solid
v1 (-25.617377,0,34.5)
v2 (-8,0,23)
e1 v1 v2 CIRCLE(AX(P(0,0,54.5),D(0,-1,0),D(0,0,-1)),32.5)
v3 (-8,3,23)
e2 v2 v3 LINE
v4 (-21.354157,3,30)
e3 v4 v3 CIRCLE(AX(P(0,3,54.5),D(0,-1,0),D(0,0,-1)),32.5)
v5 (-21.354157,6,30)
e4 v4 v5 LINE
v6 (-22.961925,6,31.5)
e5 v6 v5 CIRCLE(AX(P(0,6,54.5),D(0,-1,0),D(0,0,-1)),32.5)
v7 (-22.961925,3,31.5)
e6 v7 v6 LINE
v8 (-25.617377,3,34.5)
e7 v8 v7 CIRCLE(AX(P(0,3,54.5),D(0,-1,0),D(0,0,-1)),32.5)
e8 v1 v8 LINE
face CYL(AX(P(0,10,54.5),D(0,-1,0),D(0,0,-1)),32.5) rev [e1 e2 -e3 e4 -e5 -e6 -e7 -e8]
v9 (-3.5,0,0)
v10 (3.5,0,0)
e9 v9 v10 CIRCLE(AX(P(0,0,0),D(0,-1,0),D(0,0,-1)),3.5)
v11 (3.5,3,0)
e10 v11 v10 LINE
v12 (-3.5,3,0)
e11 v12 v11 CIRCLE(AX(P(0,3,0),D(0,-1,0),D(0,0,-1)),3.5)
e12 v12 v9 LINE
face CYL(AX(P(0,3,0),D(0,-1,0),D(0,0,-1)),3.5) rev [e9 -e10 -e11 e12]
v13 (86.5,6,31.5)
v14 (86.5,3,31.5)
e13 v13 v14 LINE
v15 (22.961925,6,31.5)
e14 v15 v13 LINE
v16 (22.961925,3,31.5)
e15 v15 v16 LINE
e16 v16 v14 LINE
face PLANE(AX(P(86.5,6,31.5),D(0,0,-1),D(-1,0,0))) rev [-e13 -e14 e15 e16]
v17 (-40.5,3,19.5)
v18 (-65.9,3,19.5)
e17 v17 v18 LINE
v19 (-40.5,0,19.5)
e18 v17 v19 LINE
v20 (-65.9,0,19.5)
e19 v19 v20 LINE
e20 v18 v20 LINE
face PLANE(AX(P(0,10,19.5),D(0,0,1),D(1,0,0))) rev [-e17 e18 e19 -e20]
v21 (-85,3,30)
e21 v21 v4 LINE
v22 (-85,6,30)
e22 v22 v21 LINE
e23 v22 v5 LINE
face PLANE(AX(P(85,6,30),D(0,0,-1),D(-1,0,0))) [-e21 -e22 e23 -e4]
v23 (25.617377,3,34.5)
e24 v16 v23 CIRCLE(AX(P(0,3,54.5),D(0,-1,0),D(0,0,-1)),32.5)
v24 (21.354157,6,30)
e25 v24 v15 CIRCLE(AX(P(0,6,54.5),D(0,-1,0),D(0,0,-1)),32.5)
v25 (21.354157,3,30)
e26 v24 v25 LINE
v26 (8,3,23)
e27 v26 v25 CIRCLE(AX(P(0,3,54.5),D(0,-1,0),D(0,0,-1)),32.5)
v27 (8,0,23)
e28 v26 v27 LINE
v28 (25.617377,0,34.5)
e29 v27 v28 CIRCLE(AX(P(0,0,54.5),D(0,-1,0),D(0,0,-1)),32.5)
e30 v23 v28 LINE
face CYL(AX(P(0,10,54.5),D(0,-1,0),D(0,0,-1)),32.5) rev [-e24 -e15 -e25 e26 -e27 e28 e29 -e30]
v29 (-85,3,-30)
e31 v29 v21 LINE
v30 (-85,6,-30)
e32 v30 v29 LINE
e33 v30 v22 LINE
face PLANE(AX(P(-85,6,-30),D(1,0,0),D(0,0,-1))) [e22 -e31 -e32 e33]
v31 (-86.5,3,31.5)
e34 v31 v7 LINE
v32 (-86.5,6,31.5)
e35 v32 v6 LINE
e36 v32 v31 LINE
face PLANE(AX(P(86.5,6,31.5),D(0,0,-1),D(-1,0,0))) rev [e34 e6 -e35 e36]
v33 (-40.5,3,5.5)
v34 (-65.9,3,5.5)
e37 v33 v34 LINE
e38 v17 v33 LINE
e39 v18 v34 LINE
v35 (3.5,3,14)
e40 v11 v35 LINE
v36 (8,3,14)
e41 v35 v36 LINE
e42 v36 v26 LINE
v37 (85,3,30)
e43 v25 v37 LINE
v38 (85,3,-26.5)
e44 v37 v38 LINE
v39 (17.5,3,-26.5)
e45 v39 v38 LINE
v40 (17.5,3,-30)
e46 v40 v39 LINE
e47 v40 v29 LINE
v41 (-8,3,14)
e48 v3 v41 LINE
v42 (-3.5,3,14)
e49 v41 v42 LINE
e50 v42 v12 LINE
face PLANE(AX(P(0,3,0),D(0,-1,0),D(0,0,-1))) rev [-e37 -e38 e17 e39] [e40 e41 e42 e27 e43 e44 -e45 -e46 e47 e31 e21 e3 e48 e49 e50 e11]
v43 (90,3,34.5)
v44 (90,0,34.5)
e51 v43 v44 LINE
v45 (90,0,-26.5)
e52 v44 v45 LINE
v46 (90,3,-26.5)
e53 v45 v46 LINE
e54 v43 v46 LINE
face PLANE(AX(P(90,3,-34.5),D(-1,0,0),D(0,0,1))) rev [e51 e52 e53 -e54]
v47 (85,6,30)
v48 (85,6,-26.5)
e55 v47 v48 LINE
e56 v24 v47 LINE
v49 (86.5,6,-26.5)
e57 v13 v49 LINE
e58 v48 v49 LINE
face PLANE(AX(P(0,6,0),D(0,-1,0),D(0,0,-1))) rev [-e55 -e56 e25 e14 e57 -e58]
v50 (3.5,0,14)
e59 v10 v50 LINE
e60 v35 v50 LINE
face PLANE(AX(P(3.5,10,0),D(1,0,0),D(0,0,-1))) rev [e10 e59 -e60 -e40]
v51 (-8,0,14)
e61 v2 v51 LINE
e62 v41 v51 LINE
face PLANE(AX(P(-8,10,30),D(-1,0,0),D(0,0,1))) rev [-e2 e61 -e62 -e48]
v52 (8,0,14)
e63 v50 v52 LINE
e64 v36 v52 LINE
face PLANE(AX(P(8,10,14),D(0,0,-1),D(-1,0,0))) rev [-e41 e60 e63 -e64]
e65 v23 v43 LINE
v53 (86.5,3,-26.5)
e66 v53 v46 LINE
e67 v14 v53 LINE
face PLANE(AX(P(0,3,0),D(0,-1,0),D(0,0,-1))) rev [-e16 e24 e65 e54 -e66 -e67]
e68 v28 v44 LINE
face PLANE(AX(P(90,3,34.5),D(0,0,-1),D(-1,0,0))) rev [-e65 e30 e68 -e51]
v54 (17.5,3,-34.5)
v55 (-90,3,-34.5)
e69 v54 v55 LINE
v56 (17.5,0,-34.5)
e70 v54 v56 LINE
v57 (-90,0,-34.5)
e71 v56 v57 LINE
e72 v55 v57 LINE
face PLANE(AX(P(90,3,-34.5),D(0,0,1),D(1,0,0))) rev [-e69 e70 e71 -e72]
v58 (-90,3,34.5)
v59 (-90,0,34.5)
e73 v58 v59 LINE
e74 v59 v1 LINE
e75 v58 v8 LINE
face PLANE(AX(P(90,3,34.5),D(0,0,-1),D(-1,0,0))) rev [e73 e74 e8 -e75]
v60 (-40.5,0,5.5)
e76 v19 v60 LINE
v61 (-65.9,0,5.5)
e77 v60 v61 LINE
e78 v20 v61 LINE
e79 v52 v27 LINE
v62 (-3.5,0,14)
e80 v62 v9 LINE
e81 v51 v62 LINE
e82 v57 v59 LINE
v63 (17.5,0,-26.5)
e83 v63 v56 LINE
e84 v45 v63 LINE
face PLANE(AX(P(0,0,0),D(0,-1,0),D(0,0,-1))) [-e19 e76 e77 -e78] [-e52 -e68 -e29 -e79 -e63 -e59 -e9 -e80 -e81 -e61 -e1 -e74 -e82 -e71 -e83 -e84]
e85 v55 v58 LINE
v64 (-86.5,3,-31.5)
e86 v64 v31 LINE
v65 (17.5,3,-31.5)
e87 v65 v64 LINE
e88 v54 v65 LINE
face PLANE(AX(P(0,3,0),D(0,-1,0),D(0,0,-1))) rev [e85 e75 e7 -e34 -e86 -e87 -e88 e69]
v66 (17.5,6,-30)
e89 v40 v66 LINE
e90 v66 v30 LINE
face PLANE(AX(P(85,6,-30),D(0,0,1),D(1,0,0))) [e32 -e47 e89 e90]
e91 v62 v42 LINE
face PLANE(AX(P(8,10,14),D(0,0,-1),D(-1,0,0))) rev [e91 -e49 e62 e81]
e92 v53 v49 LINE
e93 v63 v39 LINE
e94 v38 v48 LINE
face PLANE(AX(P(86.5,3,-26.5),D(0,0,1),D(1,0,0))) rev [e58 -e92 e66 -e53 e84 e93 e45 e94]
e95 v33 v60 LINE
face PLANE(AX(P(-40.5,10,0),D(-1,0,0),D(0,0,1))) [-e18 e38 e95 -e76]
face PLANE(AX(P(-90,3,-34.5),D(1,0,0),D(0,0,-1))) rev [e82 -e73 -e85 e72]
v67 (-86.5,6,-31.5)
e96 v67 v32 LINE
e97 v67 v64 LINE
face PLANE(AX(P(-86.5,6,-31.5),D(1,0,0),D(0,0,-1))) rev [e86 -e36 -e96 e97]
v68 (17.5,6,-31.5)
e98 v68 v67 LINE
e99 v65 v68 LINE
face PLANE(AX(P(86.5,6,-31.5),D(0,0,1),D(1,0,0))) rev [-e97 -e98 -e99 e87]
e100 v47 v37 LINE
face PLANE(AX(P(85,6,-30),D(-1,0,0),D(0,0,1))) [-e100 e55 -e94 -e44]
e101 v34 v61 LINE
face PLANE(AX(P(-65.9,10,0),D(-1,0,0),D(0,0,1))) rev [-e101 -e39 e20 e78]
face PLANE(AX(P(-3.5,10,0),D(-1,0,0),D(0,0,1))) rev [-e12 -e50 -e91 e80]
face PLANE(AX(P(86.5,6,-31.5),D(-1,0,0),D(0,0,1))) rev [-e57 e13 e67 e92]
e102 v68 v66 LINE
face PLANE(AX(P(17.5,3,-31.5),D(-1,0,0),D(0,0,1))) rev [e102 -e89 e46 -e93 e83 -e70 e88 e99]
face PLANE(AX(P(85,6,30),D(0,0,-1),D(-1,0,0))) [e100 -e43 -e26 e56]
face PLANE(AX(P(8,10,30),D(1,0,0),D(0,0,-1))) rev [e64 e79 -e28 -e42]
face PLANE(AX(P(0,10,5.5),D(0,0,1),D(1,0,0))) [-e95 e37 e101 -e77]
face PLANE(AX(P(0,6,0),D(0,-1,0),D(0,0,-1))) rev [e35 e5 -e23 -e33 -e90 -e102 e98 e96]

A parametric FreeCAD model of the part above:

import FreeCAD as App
import Part
import Sketcher
from FreeCAD import Vector

doc = App.newDocument("Part")
body = doc.addObject("PartDesign::Body", "Body")

# Sketch on XZ plane
sketch1 = body.newObject("Sketcher::SketchObject", "Sketch")
sketch1.AttachmentSupport = (doc.getObject("XZ_Plane"), [""])
sketch1.MapMode = "FlatFace"
sketch1.addGeometry([
    Part.LineSegment(Vector(-90, -34.5, 0), Vector(-90, 34.5, 0)),
    Part.LineSegment(Vector(-90, 34.5, 0), Vector(90, 34.5, 0)),
    Part.LineSegment(Vector(90, 34.5, 0), Vector(90, -34.5, 0)),
    Part.LineSegment(Vector(90, -34.5, 0), Vector(-90, -34.5, 0)),
], False)
sketch1.addConstraint([
    Sketcher.Constraint("Coincident", 0, 2, 1, 1),
    Sketcher.Constraint("Coincident", 1, 2, 2, 1),
    Sketcher.Constraint("Coincident", 2, 2, 3, 1),
    Sketcher.Constraint("Coincident", 3, 2, 0, 1),
    Sketcher.Constraint("Vertical", 0),
    Sketcher.Constraint("Horizontal", 1),
    Sketcher.Constraint("Vertical", 2),
    Sketcher.Constraint("Horizontal", 3),
    Sketcher.Constraint("Symmetric", 0, 2, 2, 2, -1, 1),
    Sketcher.Constraint("DistanceX", 1, 1, 1, 2, 180.0),
    Sketcher.Constraint("DistanceY", 0, 1, 0, 2, 69.0),
])
pad1 = body.newObject("PartDesign::Pad", "Pad")
pad1.Profile = sketch1
pad1.Length = 3
pad1.Reversed = True

# Sketch on XZ plane
sketch2 = body.newObject("Sketcher::SketchObject", "Sketch001")
sketch2.AttachmentSupport = (doc.getObject("XZ_Plane"), [""])
sketch2.MapMode = "FlatFace"
sketch2.AttachmentOffset = App.Placement(Vector(0, 0, -3), App.Rotation())
sketch2.addGeometry([
    Part.LineSegment(Vector(-86.5, -31.5, 0), Vector(-86.5, 31.5, 0)),  # 0
    Part.LineSegment(Vector(-86.5, 31.5, 0), Vector(86.5, 31.5, 0)),  # 1
    Part.LineSegment(Vector(86.5, 31.5, 0), Vector(86.5, -31.5, 0)),  # 2
    Part.LineSegment(Vector(86.5, -31.5, 0), Vector(-86.5, -31.5, 0)),  # 3
    Part.LineSegment(Vector(85, 30, 0), Vector(-85, 30, 0)),  # 4
    Part.LineSegment(Vector(-85, 30, 0), Vector(-85, -30, 0)),  # 5
    Part.LineSegment(Vector(-85, -30, 0), Vector(85, -30, 0)),  # 6
    Part.LineSegment(Vector(85, -30, 0), Vector(85, 30, 0)),  # 7
], False)
sketch2.addConstraint([
    Sketcher.Constraint("Coincident", 0, 2, 1, 1),
    Sketcher.Constraint("Coincident", 1, 2, 2, 1),
    Sketcher.Constraint("Coincident", 2, 2, 3, 1),
    Sketcher.Constraint("Coincident", 3, 2, 0, 1),
    Sketcher.Constraint("Coincident", 4, 2, 5, 1),
    Sketcher.Constraint("Coincident", 5, 2, 6, 1),
    Sketcher.Constraint("Coincident", 6, 2, 7, 1),
    Sketcher.Constraint("Coincident", 7, 2, 4, 1),
    Sketcher.Constraint("Vertical", 0),
    Sketcher.Constraint("Horizontal", 1),
    Sketcher.Constraint("Vertical", 2),
    Sketcher.Constraint("Horizontal", 3),
    Sketcher.Constraint("Horizontal", 4),
    Sketcher.Constraint("Vertical", 5),
    Sketcher.Constraint("Horizontal", 6),
    Sketcher.Constraint("Vertical", 7),
    Sketcher.Constraint("Symmetric", 0, 2, 2, 2, -1, 1),
    Sketcher.Constraint("Symmetric", 4, 2, 6, 2, -1, 1),
    Sketcher.Constraint("DistanceX", 1, 1, 1, 2, 173.0),
    Sketcher.Constraint("DistanceX", 4, 2, 4, 1, 170.0),
    Sketcher.Constraint("DistanceY", 0, 1, 0, 2, 63.0),
    Sketcher.Constraint("DistanceY", 5, 2, 5, 1, 60.0),
])
pad2 = body.newObject("PartDesign::Pad", "Pad001")
pad2.Profile = sketch2
pad2.Length = 3
pad2.Reversed = True

# Sketch on XZ plane
sketch3 = body.newObject("Sketcher::SketchObject", "Sketch002")
sketch3.AttachmentSupport = (doc.getObject("XZ_Plane"), [""])
sketch3.MapMode = "FlatFace"
sketch3.addGeometry([
    Part.LineSegment(Vector(-65.9, 19.5, 0), Vector(-65.9, 5.5, 0)),
    Part.LineSegment(Vector(-65.9, 5.5, 0), Vector(-40.5, 5.5, 0)),
    Part.LineSegment(Vector(-40.5, 5.5, 0), Vector(-40.5, 19.5, 0)),
    Part.LineSegment(Vector(-40.5, 19.5, 0), Vector(-65.9, 19.5, 0)),
], False)
sketch3.addConstraint([
    Sketcher.Constraint("Coincident", 0, 2, 1, 1),
    Sketcher.Constraint("Coincident", 1, 2, 2, 1),
    Sketcher.Constraint("Coincident", 2, 2, 3, 1),
    Sketcher.Constraint("Coincident", 3, 2, 0, 1),
    Sketcher.Constraint("Vertical", 0),
    Sketcher.Constraint("Horizontal", 1),
    Sketcher.Constraint("Vertical", 2),
    Sketcher.Constraint("Horizontal", 3),
    Sketcher.Constraint("DistanceY", 0, 2, 0, 1, 14.0),
    Sketcher.Constraint("DistanceX", 1, 1, 1, 2, 25.4),
    Sketcher.Constraint("DistanceX", 0, 2, -1, 1, 65.9),
    Sketcher.Constraint("DistanceY", -1, 1, 0, 2, 5.5),
])
pocket1 = body.newObject("PartDesign::Pocket", "Pocket")
pocket1.Profile = sketch3
pocket1.Length = 10

# Sketch on XZ plane
sketch4 = body.newObject("Sketcher::SketchObject", "Sketch003")
sketch4.AttachmentSupport = (doc.getObject("XZ_Plane"), [""])
sketch4.MapMode = "FlatFace"
sketch4.AttachmentOffset = App.Placement(Vector(0, 0, -6), App.Rotation())
sketch4.addGeometry([
    Part.LineSegment(Vector(17.5, -31.5, 0), Vector(17.5, -30, 0)),
    Part.LineSegment(Vector(17.5, -30, 0), Vector(86.5, -30, 0)),
    Part.LineSegment(Vector(86.5, -30, 0), Vector(86.5, -31.5, 0)),
    Part.LineSegment(Vector(86.5, -31.5, 0), Vector(17.5, -31.5, 0)),
], False)
sketch4.addConstraint([
    Sketcher.Constraint("Coincident", 0, 2, 1, 1),
    Sketcher.Constraint("Coincident", 1, 2, 2, 1),
    Sketcher.Constraint("Coincident", 2, 2, 3, 1),
    Sketcher.Constraint("Coincident", 3, 2, 0, 1),
    Sketcher.Constraint("Vertical", 0),
    Sketcher.Constraint("Horizontal", 1),
    Sketcher.Constraint("Vertical", 2),
    Sketcher.Constraint("Horizontal", 3),
    Sketcher.Constraint("DistanceX", 1, 1, 1, 2, 69.0),
    Sketcher.Constraint("DistanceY", 0, 1, 0, 2, 1.5),
    Sketcher.Constraint("DistanceY", 0, 2, -1, 1, 30.0),
    Sketcher.Constraint("DistanceX", -1, 1, 0, 2, 17.5),
])
pocket2 = body.newObject("PartDesign::Pocket", "Pocket001")
pocket2.Profile = sketch4
pocket2.Length = 3
pocket2.Reversed = True

# Sketch on XZ plane
sketch5 = body.newObject("Sketcher::SketchObject", "Sketch004")
sketch5.AttachmentSupport = (doc.getObject("XZ_Plane"), [""])
sketch5.MapMode = "FlatFace"
sketch5.AttachmentOffset = App.Placement(Vector(0, 0, -6), App.Rotation())
sketch5.addGeometry([
    Part.LineSegment(Vector(85, -30, 0), Vector(85, -26.5, 0)),
    Part.LineSegment(Vector(85, -26.5, 0), Vector(86.5, -26.5, 0)),
    Part.LineSegment(Vector(86.5, -26.5, 0), Vector(86.5, -30, 0)),
    Part.LineSegment(Vector(86.5, -30, 0), Vector(85, -30, 0)),
], False)
sketch5.addConstraint([
    Sketcher.Constraint("Coincident", 0, 2, 1, 1),
    Sketcher.Constraint("Coincident", 1, 2, 2, 1),
    Sketcher.Constraint("Coincident", 2, 2, 3, 1),
    Sketcher.Constraint("Coincident", 3, 2, 0, 1),
    Sketcher.Constraint("Vertical", 0),
    Sketcher.Constraint("Horizontal", 1),
    Sketcher.Constraint("Vertical", 2),
    Sketcher.Constraint("Horizontal", 3),
    Sketcher.Constraint("DistanceX", 1, 1, 1, 2, 1.5),
    Sketcher.Constraint("DistanceY", 0, 1, 0, 2, 3.5),
    Sketcher.Constraint("DistanceX", -1, 1, 0, 2, 85.0),
    Sketcher.Constraint("DistanceY", 2, 2, -1, 1, 30.0),
])
pocket3 = body.newObject("PartDesign::Pocket", "Pocket002")
pocket3.Profile = sketch5
pocket3.Length = 3
pocket3.Reversed = True

# Sketch on XZ plane
sketch6 = body.newObject("Sketcher::SketchObject", "Sketch005")
sketch6.AttachmentSupport = (doc.getObject("XZ_Plane"), [""])
sketch6.MapMode = "FlatFace"
sketch6.addGeometry(Part.Circle(Vector(0, 0, 0), Vector(0, 0, 1), 3.5), False)
sketch6.addConstraint([
    Sketcher.Constraint("Coincident", 0, 3, -1, 1),
    Sketcher.Constraint("Diameter", 0, 7.0),
])
pocket4 = body.newObject("PartDesign::Pocket", "Pocket003")
pocket4.Profile = sketch6
pocket4.Length = 3

# Sketch on XZ plane
sketch7 = body.newObject("Sketcher::SketchObject", "Sketch006")
sketch7.AttachmentSupport = (doc.getObject("XZ_Plane"), [""])
sketch7.MapMode = "FlatFace"
sketch7.addGeometry(Part.Circle(Vector(0, 54.5, 0), Vector(0, 0, 1), 32.5), False)
sketch7.addConstraint([
    Sketcher.Constraint("PointOnObject", 0, 3, -2),
    Sketcher.Constraint("Diameter", 0, 65.0),
    Sketcher.Constraint("DistanceY", -1, 1, 0, 3, 54.5),
])
pocket5 = body.newObject("PartDesign::Pocket", "Pocket004")
pocket5.Profile = sketch7
pocket5.Length = 10

# Sketch on XZ plane
sketch8 = body.newObject("Sketcher::SketchObject", "Sketch007")
sketch8.AttachmentSupport = (doc.getObject("XZ_Plane"), [""])
sketch8.MapMode = "FlatFace"
sketch8.addGeometry([
    Part.LineSegment(Vector(-8, 30, 0), Vector(-8, 14, 0)),
    Part.LineSegment(Vector(-8, 14, 0), Vector(8, 14, 0)),
    Part.LineSegment(Vector(8, 14, 0), Vector(8, 30, 0)),
    Part.LineSegment(Vector(8, 30, 0), Vector(-8, 30, 0)),
], False)
sketch8.addConstraint([
    Sketcher.Constraint("Coincident", 0, 2, 1, 1),
    Sketcher.Constraint("Coincident", 1, 2, 2, 1),
    Sketcher.Constraint("Coincident", 2, 2, 3, 1),
    Sketcher.Constraint("Coincident", 3, 2, 0, 1),
    Sketcher.Constraint("Vertical", 0),
    Sketcher.Constraint("Horizontal", 1),
    Sketcher.Constraint("Vertical", 2),
    Sketcher.Constraint("Horizontal", 3),
    Sketcher.Constraint("Equal", 3, 0),
    Sketcher.Constraint("DistanceX", 1, 1, 1, 2, 16.0),
    Sketcher.Constraint("DistanceX", 0, 2, -1, 1, 8.0),
    Sketcher.Constraint("DistanceY", -1, 1, 0, 2, 14.0),
])
pocket6 = body.newObject("PartDesign::Pocket", "Pocket005")
pocket6.Profile = sketch8
pocket6.Length = 10

# Sketch on XZ plane
sketch9 = body.newObject("Sketcher::SketchObject", "Sketch008")
sketch9.AttachmentSupport = (doc.getObject("XZ_Plane"), [""])
sketch9.MapMode = "FlatFace"
sketch9.AttachmentOffset = App.Placement(Vector(0, 0, -3), App.Rotation())
sketch9.addGeometry([
    Part.LineSegment(Vector(17.5, -34.5, 0), Vector(17.5, -26.5, 0)),
    Part.LineSegment(Vector(17.5, -26.5, 0), Vector(90, -26.5, 0)),
    Part.LineSegment(Vector(90, -26.5, 0), Vector(90, -34.5, 0)),
    Part.LineSegment(Vector(90, -34.5, 0), Vector(17.5, -34.5, 0)),
], False)
sketch9.addConstraint([
    Sketcher.Constraint("Coincident", 0, 2, 1, 1),
    Sketcher.Constraint("Coincident", 1, 2, 2, 1),
    Sketcher.Constraint("Coincident", 2, 2, 3, 1),
    Sketcher.Constraint("Coincident", 3, 2, 0, 1),
    Sketcher.Constraint("Vertical", 0),
    Sketcher.Constraint("Horizontal", 1),
    Sketcher.Constraint("Vertical", 2),
    Sketcher.Constraint("Horizontal", 3),
    Sketcher.Constraint("DistanceY", 0, 1, 0, 2, 8.0),
    Sketcher.Constraint("DistanceX", 1, 1, 1, 2, 72.5),
    Sketcher.Constraint("DistanceX", -1, 1, 1, 2, 90.0),
    Sketcher.Constraint("DistanceY", 0, 2, -1, 1, 26.5),
])
pocket7 = body.newObject("PartDesign::Pocket", "Pocket006")
pocket7.Profile = sketch9
pocket7.Length = 10
pocket7.Reversed = True

# Sketch on XZ plane
sketch10 = body.newObject("Sketcher::SketchObject", "Sketch009")
sketch10.AttachmentSupport = (doc.getObject("XZ_Plane"), [""])
sketch10.MapMode = "FlatFace"
sketch10.addGeometry([
    Part.LineSegment(Vector(3.5, 0, 0), Vector(3.5, 14, 0)),
    Part.LineSegment(Vector(3.5, 14, 0), Vector(-3.5, 14, 0)),
    Part.LineSegment(Vector(-3.5, 14, 0), Vector(-3.5, 0, 0)),
    Part.LineSegment(Vector(-3.5, 0, 0), Vector(3.5, 0, 0)),
], False)
sketch10.addConstraint([
    Sketcher.Constraint("Coincident", 0, 2, 1, 1),
    Sketcher.Constraint("Coincident", 1, 2, 2, 1),
    Sketcher.Constraint("Coincident", 2, 2, 3, 1),
    Sketcher.Constraint("Coincident", 3, 2, 0, 1),
    Sketcher.Constraint("Vertical", 0),
    Sketcher.Constraint("Horizontal", 1),
    Sketcher.Constraint("Vertical", 2),
    Sketcher.Constraint("Horizontal", 3),
    Sketcher.Constraint("Symmetric", 2, 2, 3, 2, -1, 1),
    Sketcher.Constraint("DistanceX", 1, 2, 1, 1, 7.0),
    Sketcher.Constraint("DistanceY", 0, 1, 0, 2, 14.0),
])
pocket8 = body.newObject("PartDesign::Pocket", "Pocket007")
pocket8.Profile = sketch10
pocket8.Length = 10

doc.recompute()
